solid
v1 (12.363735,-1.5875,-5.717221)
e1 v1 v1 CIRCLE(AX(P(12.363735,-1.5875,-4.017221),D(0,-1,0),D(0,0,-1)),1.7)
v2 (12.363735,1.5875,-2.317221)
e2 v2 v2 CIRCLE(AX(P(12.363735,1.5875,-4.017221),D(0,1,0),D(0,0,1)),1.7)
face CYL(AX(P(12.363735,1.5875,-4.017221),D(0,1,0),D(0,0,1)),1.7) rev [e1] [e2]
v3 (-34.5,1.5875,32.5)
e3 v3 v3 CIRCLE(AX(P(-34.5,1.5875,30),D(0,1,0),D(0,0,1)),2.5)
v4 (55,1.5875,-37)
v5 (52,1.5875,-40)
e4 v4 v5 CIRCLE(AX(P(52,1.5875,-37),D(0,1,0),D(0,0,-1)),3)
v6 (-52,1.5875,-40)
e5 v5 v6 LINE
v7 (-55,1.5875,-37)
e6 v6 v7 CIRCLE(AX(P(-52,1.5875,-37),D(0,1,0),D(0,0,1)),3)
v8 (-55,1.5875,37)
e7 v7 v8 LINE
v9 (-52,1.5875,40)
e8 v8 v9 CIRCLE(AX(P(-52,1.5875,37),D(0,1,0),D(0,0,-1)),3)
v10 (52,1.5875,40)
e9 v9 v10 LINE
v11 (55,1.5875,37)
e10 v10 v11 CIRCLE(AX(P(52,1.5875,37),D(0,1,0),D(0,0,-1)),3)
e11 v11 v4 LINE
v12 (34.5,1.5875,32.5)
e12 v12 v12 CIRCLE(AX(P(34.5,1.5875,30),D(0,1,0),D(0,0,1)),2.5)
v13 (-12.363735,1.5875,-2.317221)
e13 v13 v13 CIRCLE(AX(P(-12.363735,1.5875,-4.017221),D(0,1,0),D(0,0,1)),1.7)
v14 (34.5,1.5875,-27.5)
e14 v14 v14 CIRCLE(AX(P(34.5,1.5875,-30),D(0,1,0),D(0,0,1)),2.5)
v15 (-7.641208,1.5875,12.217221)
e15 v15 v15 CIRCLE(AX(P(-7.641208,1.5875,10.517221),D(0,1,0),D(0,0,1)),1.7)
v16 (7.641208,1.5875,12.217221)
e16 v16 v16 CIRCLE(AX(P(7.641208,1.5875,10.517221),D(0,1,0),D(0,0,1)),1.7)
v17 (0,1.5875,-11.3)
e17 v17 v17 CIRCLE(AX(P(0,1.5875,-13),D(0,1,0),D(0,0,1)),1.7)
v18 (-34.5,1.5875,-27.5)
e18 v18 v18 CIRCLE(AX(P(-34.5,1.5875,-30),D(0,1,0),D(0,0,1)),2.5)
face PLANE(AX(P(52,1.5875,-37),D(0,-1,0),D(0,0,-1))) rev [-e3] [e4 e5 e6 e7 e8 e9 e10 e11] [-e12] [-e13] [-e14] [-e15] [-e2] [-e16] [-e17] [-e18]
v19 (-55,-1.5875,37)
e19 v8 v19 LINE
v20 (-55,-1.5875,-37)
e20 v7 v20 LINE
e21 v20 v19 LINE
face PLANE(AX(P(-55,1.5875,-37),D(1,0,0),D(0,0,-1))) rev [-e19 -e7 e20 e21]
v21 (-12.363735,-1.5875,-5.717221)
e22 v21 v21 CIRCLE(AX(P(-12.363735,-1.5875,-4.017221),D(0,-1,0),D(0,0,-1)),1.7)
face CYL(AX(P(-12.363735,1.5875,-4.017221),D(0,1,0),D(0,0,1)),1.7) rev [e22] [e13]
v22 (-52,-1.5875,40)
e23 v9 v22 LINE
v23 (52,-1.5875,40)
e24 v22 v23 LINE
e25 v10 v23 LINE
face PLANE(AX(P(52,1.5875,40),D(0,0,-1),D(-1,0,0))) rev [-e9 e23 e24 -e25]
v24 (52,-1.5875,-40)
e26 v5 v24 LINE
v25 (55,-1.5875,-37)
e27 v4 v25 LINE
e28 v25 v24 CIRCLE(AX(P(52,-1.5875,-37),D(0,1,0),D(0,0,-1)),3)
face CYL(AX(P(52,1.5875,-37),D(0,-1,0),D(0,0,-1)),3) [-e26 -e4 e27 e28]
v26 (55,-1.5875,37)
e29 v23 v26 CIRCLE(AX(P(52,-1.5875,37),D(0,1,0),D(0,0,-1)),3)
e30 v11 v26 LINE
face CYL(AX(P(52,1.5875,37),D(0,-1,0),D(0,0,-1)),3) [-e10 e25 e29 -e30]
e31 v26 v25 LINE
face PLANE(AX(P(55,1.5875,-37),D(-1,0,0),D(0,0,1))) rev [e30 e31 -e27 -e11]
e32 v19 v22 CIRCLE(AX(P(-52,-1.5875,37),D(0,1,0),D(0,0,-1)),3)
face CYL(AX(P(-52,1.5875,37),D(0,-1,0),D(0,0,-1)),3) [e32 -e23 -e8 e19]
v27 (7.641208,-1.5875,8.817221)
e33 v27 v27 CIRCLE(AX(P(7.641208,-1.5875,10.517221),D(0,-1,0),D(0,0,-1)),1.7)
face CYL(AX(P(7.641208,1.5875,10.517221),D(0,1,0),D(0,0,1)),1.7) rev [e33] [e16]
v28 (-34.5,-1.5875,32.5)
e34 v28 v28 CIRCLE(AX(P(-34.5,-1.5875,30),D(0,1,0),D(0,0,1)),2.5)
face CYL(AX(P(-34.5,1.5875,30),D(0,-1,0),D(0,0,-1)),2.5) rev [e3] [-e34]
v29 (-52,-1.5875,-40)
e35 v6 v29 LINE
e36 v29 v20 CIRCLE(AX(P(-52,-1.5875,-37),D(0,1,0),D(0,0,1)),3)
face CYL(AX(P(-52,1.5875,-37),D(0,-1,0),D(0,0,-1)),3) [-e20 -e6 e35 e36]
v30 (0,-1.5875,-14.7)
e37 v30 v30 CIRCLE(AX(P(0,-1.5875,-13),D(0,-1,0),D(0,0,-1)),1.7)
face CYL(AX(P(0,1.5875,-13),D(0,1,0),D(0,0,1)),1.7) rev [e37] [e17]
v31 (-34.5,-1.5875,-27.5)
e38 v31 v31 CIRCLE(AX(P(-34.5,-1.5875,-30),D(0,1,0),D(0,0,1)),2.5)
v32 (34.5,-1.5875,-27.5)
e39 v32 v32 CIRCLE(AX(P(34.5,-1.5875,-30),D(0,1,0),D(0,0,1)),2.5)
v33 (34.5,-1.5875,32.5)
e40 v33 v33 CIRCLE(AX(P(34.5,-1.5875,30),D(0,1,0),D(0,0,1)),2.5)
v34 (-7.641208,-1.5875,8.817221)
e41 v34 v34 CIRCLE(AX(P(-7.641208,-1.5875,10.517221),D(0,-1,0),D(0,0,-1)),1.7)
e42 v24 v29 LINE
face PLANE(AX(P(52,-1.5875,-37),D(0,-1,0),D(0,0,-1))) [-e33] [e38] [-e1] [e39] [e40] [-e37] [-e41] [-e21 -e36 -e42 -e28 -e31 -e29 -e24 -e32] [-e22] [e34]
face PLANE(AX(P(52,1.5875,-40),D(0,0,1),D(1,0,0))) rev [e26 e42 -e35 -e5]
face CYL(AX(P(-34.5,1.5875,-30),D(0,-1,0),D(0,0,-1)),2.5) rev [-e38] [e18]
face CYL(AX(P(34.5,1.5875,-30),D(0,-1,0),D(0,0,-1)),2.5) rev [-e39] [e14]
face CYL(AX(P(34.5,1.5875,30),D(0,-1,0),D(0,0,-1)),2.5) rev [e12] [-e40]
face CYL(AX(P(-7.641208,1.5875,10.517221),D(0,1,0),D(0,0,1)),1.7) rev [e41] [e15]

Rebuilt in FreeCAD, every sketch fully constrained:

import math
import FreeCAD as App
import Part
import Sketcher

V = App.Vector

doc = App.newDocument("Part")
body = doc.addObject("PartDesign::Body", "Body")

# Sketch on XZ plane
sketch1 = doc.addObject("Sketcher::SketchObject", "Sketch")
body.addObject(sketch1)
sketch1.AttachmentSupport = (doc.XZ_Plane, [""])
sketch1.MapMode = "FlatFace"
sketch1.addGeometry([
    Part.LineSegment(V(52, -40, 0), V(-52, -40, 0)),  # 0
    Part.ArcOfCircle(Part.Circle(V(-52, -37, 0), V(0, 0, 1), 3), math.radians(180), math.radians(270)),  # 1
    Part.LineSegment(V(-55, -37, 0), V(-55, 37, 0)),  # 2
    Part.ArcOfCircle(Part.Circle(V(-52, 37, 0), V(0, 0, 1), 3), math.radians(90), math.radians(180)),  # 3
    Part.LineSegment(V(-52, 40, 0), V(52, 40, 0)),  # 4
    Part.ArcOfCircle(Part.Circle(V(52, 37, 0), V(0, 0, 1), 3), math.radians(0), math.radians(90)),  # 5
    Part.LineSegment(V(55, 37, 0), V(55, -37, 0)),  # 6
    Part.ArcOfCircle(Part.Circle(V(52, -37, 0), V(0, 0, 1), 3), math.radians(-90), math.radians(0)),  # 7
    Part.Circle(V(-34.5, 30, 0), V(0, 0, 1), 2.5),  # 8
    Part.Circle(V(34.5, 30, 0), V(0, 0, 1), 2.5),  # 9
    Part.Circle(V(-34.5, -30, 0), V(0, 0, 1), 2.5),  # 10
    Part.Circle(V(34.5, -30, 0), V(0, 0, 1), 2.5),  # 11
], False)
sketch1.addConstraint([
    Sketcher.Constraint("Tangent", 0, 2, 1, 2),
    Sketcher.Constraint("Tangent", 1, 1, 2, 1),
    Sketcher.Constraint("Tangent", 2, 2, 3, 2),
    Sketcher.Constraint("Tangent", 3, 1, 4, 1),
    Sketcher.Constraint("Tangent", 4, 2, 5, 2),
    Sketcher.Constraint("Tangent", 5, 1, 6, 1),
    Sketcher.Constraint("Tangent", 6, 2, 7, 2),
    Sketcher.Constraint("Tangent", 7, 1, 0, 1),
    Sketcher.Constraint("Horizontal", 0),
    Sketcher.Constraint("Vertical", 2),
    Sketcher.Constraint("Horizontal", 4),
    Sketcher.Constraint("Vertical", 6),
    Sketcher.Constraint("Equal", 1, 3),
    Sketcher.Constraint("Equal", 3, 5),
    Sketcher.Constraint("Equal", 5, 7),
    Sketcher.Constraint("Equal", 8, 9),
    Sketcher.Constraint("Equal", 9, 10),
    Sketcher.Constraint("Equal", 10, 11),
    Sketcher.Constraint("Symmetric", 1, 3, 5, 3, -1, 1),
    Sketcher.Constraint("Symmetric", 9, 3, 10, 3, -1, 1),
    Sketcher.Constraint("Symmetric", 8, 3, 11, 3, -1, 1),
    Sketcher.Constraint("Symmetric", 8, 3, 9, 3, -2),
    Sketcher.Constraint("Diameter", 8, 5.0),
    Sketcher.Constraint("Radius", 1, 3.0),
    Sketcher.Constraint("DistanceX", 0, 2, 0, 1, 104.0),
    Sketcher.Constraint("DistanceY", 2, 1, 2, 2, 74.0),
    Sketcher.Constraint("DistanceY", -1, 1, 8, 3, 30.0),
    Sketcher.Constraint("DistanceX", 8, 3, 9, 3, 69.0),
])
pad1 = doc.addObject("PartDesign::Pad", "Pad")
body.addObject(pad1)
pad1.Profile = sketch1
pad1.Length = 3.175
pad1.Midplane = True

# Sketch on XZ plane
sketch2 = doc.addObject("Sketcher::SketchObject", "Sketch001")
body.addObject(sketch2)
sketch2.AttachmentSupport = (doc.XZ_Plane, [""])
sketch2.MapMode = "FlatFace"
sketch2.AttachmentOffset = App.Placement(V(0, 0, -1.5875), App.Rotation())
sketch2.addGeometry([
    Part.Circle(V(0, -13, 0), V(0, 0, 1), 1.7),  # 0
    Part.Circle(V(12.4, -4, 0), V(0, 0, 1), 1.7),  # 1
    Part.Circle(V(7.6, 10.5, 0), V(0, 0, 1), 1.7),  # 2
    Part.Circle(V(-7.6, 10.5, 0), V(0, 0, 1), 1.7),  # 3
    Part.Circle(V(-12.4, -4, 0), V(0, 0, 1), 1.7),  # 4
], False)
sketch2.addConstraint([
    Sketcher.Constraint("Equal", 0, 1),
    Sketcher.Constraint("Equal", 1, 2),
    Sketcher.Constraint("Equal", 2, 3),
    Sketcher.Constraint("Equal", 3, 4),
    Sketcher.Constraint("Symmetric", 2, 3, 3, 3, -2),
    Sketcher.Constraint("Symmetric", 1, 3, 4, 3, -2),
    Sketcher.Constraint("PointOnObject", 0, 3, -2),
    Sketcher.Constraint("Diameter", 0, 3.4),
    Sketcher.Constraint("DistanceY", 0, 3, -1, 1, 13.0),
    Sketcher.Constraint("DistanceY", 1, 3, -1, 1, 4.017221),
    Sketcher.Constraint("DistanceX", -1, 1, 2, 3, 7.641208),
    Sketcher.Constraint("DistanceY", -1, 1, 2, 3, 10.517221),
    Sketcher.Constraint("DistanceX", 4, 3, 1, 3, 24.727469),
])
doc.recompute()
hole = doc.addObject("PartDesign::Hole", "Hole")
body.addObject(hole)
hole.Profile = sketch2
hole.ThreadType = "None"
hole.Diameter = 3.4
hole.DepthType = "Dimension"
hole.Depth = 10
hole.DrillPoint = "Angled"
hole.DrillPointAngle = 118
hole.Reversed = True

doc.recompute()
